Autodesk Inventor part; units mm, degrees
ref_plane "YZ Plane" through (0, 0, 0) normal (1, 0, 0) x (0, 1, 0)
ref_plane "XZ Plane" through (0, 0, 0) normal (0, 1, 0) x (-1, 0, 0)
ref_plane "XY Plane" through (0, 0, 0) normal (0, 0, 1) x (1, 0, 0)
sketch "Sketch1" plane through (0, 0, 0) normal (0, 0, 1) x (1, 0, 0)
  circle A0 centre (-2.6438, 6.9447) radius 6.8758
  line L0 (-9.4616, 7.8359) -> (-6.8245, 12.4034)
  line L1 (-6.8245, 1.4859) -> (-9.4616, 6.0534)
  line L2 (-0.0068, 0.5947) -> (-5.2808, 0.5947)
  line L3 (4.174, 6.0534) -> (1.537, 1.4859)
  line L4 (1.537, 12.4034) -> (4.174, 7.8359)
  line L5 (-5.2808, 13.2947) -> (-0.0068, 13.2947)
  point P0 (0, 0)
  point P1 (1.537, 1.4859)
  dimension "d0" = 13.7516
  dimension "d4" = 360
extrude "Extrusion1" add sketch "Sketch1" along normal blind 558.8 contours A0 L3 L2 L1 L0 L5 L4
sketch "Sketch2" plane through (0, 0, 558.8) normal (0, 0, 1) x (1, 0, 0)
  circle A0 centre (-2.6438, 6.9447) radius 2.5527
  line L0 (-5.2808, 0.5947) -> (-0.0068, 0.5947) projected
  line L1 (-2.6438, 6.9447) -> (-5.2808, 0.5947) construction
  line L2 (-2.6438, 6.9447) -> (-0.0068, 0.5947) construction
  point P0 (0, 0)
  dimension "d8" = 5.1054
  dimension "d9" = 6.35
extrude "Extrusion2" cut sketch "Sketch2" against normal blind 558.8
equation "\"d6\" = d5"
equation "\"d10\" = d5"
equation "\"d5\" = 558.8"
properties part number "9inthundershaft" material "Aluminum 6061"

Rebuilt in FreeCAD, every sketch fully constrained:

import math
import FreeCAD as App
import Part
import Sketcher
Q = App.Units.Quantity

doc = App.newDocument("Part")
body = doc.addObject("PartDesign::Body", "Body")

# Sketch on XY plane
sketch1 = body.newObject("Sketcher::SketchObject", "Sketch")
sketch1.AttachmentSupport = (doc.getObject("XY_Plane"), [""])
sketch1.MapMode = "FlatFace"
sketch1.addGeometry([
    Part.ArcOfCircle(Part.Circle(App.Vector(-2.6, 6.9, 0), App.Vector(0, 0, 1), 6.9), math.radians(-7.45), math.radians(7.45)),  # 0
    Part.LineSegment(App.Vector(4.2, 7.8, 0), App.Vector(1.5, 12.4, 0)),  # 1
    Part.ArcOfCircle(Part.Circle(App.Vector(-2.6, 6.9, 0), App.Vector(0, 0, 1), 6.9), math.radians(52.55), math.radians(67.45)),  # 2
    Part.LineSegment(App.Vector(0, 13.3, 0), App.Vector(-5.3, 13.3, 0)),  # 3
    Part.ArcOfCircle(Part.Circle(App.Vector(-2.6, 6.9, 0), App.Vector(0, 0, 1), 6.9), math.radians(112.55), math.radians(127.45)),  # 4
    Part.LineSegment(App.Vector(-6.8, 12.4, 0), App.Vector(-9.5, 7.8, 0)),  # 5
    Part.ArcOfCircle(Part.Circle(App.Vector(-2.6, 6.9, 0), App.Vector(0, 0, 1), 6.9), math.radians(172.55), math.radians(187.45)),  # 6
    Part.LineSegment(App.Vector(-9.5, 6.1, 0), App.Vector(-6.8, 1.5, 0)),  # 7
    Part.ArcOfCircle(Part.Circle(App.Vector(-2.6, 6.9, 0), App.Vector(0, 0, 1), 6.9), math.radians(-127.45), math.radians(-112.55)),  # 8
    Part.LineSegment(App.Vector(-5.3, 0.6, 0), App.Vector(0, 0.6, 0)),  # 9
    Part.ArcOfCircle(Part.Circle(App.Vector(-2.6, 6.9, 0), App.Vector(0, 0, 1), 6.9), math.radians(-67.45), math.radians(-52.55)),  # 10
    Part.LineSegment(App.Vector(1.5, 1.5, 0), App.Vector(4.2, 6.1, 0)),  # 11
], False)
sketch1.addConstraint([
    Sketcher.Constraint("Coincident", 0, 2, 1, 1),
    Sketcher.Constraint("Coincident", 1, 2, 2, 1),
    Sketcher.Constraint("Coincident", 2, 2, 3, 1),
    Sketcher.Constraint("Coincident", 3, 2, 4, 1),
    Sketcher.Constraint("Coincident", 4, 2, 5, 1),
    Sketcher.Constraint("Coincident", 5, 2, 6, 1),
    Sketcher.Constraint("Coincident", 6, 2, 7, 1),
    Sketcher.Constraint("Coincident", 7, 2, 8, 1),
    Sketcher.Constraint("Coincident", 8, 2, 9, 1),
    Sketcher.Constraint("Coincident", 9, 2, 10, 1),
    Sketcher.Constraint("Coincident", 10, 2, 11, 1),
    Sketcher.Constraint("Coincident", 11, 2, 0, 1),
    Sketcher.Constraint("Horizontal", 3),
    Sketcher.Constraint("Horizontal", 9),
    Sketcher.Constraint("Coincident", 2, 3, 0, 3),
    Sketcher.Constraint("Coincident", 4, 3, 0, 3),
    Sketcher.Constraint("Coincident", 6, 3, 0, 3),
    Sketcher.Constraint("Coincident", 8, 3, 0, 3),
    Sketcher.Constraint("Coincident", 10, 3, 0, 3),
    Sketcher.Constraint("Equal", 0, 2),
    Sketcher.Constraint("Equal", 2, 4),
    Sketcher.Constraint("Equal", 4, 6),
    Sketcher.Constraint("Equal", 6, 8),
    Sketcher.Constraint("Equal", 8, 10),
    Sketcher.Constraint("Parallel", 1, 7),
    Sketcher.Constraint("Parallel", 5, 11),
    Sketcher.Constraint("Horizontal", 1, 2, 4, 2),
    Sketcher.Constraint("Horizontal", 0, 2, 5, 2),
    Sketcher.Constraint("Horizontal", 7, 2, 10, 2),
    Sketcher.Constraint("Vertical", 5, 2, 6, 2),
    Sketcher.Constraint("Vertical", 3, 2, 8, 2),
    Sketcher.Constraint("Radius", 0, Q("0.2707 in")),
    Sketcher.Constraint("Angle", 1, Q("119.9996 deg")),
    Sketcher.Constraint("DistanceY", 0, 3, 2, 2, Q("0.25 in")),
    Sketcher.Constraint("DistanceY", 10, 2, 0, 2, Q("0.25 in")),
    Sketcher.Constraint("DistanceY", -1, 1, 0, 2, Q("0.3085 in")),
    Sketcher.Constraint("DistanceX", -1, 1, 1, 2, Q("0.0605 in")),
])
pad1 = body.newObject("PartDesign::Pad", "Pad")
pad1.Profile = sketch1
pad1.Length = Q("22 in")

# Sketch on XY plane
sketch2 = body.newObject("Sketcher::SketchObject", "Sketch001")
sketch2.AttachmentSupport = (doc.getObject("XY_Plane"), [""])
sketch2.MapMode = "FlatFace"
sketch2.AttachmentOffset = App.Placement(App.Vector(0, 0, 22 * 25.4), App.Rotation())
sketch2.addGeometry(Part.Circle(App.Vector(-2.6, 6.9, 0), App.Vector(0, 0, 1), 2.6), False)
sketch2.addConstraint([
    Sketcher.Constraint("Diameter", 0, Q("0.201 in")),
    Sketcher.Constraint("DistanceX", 0, 3, -1, 1, 2.6438),
    Sketcher.Constraint("DistanceY", -1, 1, 0, 3, 6.9447),
])
pocket1 = body.newObject("PartDesign::Pocket", "Pocket")
pocket1.Profile = sketch2
pocket1.Length = Q("22 in")

doc.recompute()
